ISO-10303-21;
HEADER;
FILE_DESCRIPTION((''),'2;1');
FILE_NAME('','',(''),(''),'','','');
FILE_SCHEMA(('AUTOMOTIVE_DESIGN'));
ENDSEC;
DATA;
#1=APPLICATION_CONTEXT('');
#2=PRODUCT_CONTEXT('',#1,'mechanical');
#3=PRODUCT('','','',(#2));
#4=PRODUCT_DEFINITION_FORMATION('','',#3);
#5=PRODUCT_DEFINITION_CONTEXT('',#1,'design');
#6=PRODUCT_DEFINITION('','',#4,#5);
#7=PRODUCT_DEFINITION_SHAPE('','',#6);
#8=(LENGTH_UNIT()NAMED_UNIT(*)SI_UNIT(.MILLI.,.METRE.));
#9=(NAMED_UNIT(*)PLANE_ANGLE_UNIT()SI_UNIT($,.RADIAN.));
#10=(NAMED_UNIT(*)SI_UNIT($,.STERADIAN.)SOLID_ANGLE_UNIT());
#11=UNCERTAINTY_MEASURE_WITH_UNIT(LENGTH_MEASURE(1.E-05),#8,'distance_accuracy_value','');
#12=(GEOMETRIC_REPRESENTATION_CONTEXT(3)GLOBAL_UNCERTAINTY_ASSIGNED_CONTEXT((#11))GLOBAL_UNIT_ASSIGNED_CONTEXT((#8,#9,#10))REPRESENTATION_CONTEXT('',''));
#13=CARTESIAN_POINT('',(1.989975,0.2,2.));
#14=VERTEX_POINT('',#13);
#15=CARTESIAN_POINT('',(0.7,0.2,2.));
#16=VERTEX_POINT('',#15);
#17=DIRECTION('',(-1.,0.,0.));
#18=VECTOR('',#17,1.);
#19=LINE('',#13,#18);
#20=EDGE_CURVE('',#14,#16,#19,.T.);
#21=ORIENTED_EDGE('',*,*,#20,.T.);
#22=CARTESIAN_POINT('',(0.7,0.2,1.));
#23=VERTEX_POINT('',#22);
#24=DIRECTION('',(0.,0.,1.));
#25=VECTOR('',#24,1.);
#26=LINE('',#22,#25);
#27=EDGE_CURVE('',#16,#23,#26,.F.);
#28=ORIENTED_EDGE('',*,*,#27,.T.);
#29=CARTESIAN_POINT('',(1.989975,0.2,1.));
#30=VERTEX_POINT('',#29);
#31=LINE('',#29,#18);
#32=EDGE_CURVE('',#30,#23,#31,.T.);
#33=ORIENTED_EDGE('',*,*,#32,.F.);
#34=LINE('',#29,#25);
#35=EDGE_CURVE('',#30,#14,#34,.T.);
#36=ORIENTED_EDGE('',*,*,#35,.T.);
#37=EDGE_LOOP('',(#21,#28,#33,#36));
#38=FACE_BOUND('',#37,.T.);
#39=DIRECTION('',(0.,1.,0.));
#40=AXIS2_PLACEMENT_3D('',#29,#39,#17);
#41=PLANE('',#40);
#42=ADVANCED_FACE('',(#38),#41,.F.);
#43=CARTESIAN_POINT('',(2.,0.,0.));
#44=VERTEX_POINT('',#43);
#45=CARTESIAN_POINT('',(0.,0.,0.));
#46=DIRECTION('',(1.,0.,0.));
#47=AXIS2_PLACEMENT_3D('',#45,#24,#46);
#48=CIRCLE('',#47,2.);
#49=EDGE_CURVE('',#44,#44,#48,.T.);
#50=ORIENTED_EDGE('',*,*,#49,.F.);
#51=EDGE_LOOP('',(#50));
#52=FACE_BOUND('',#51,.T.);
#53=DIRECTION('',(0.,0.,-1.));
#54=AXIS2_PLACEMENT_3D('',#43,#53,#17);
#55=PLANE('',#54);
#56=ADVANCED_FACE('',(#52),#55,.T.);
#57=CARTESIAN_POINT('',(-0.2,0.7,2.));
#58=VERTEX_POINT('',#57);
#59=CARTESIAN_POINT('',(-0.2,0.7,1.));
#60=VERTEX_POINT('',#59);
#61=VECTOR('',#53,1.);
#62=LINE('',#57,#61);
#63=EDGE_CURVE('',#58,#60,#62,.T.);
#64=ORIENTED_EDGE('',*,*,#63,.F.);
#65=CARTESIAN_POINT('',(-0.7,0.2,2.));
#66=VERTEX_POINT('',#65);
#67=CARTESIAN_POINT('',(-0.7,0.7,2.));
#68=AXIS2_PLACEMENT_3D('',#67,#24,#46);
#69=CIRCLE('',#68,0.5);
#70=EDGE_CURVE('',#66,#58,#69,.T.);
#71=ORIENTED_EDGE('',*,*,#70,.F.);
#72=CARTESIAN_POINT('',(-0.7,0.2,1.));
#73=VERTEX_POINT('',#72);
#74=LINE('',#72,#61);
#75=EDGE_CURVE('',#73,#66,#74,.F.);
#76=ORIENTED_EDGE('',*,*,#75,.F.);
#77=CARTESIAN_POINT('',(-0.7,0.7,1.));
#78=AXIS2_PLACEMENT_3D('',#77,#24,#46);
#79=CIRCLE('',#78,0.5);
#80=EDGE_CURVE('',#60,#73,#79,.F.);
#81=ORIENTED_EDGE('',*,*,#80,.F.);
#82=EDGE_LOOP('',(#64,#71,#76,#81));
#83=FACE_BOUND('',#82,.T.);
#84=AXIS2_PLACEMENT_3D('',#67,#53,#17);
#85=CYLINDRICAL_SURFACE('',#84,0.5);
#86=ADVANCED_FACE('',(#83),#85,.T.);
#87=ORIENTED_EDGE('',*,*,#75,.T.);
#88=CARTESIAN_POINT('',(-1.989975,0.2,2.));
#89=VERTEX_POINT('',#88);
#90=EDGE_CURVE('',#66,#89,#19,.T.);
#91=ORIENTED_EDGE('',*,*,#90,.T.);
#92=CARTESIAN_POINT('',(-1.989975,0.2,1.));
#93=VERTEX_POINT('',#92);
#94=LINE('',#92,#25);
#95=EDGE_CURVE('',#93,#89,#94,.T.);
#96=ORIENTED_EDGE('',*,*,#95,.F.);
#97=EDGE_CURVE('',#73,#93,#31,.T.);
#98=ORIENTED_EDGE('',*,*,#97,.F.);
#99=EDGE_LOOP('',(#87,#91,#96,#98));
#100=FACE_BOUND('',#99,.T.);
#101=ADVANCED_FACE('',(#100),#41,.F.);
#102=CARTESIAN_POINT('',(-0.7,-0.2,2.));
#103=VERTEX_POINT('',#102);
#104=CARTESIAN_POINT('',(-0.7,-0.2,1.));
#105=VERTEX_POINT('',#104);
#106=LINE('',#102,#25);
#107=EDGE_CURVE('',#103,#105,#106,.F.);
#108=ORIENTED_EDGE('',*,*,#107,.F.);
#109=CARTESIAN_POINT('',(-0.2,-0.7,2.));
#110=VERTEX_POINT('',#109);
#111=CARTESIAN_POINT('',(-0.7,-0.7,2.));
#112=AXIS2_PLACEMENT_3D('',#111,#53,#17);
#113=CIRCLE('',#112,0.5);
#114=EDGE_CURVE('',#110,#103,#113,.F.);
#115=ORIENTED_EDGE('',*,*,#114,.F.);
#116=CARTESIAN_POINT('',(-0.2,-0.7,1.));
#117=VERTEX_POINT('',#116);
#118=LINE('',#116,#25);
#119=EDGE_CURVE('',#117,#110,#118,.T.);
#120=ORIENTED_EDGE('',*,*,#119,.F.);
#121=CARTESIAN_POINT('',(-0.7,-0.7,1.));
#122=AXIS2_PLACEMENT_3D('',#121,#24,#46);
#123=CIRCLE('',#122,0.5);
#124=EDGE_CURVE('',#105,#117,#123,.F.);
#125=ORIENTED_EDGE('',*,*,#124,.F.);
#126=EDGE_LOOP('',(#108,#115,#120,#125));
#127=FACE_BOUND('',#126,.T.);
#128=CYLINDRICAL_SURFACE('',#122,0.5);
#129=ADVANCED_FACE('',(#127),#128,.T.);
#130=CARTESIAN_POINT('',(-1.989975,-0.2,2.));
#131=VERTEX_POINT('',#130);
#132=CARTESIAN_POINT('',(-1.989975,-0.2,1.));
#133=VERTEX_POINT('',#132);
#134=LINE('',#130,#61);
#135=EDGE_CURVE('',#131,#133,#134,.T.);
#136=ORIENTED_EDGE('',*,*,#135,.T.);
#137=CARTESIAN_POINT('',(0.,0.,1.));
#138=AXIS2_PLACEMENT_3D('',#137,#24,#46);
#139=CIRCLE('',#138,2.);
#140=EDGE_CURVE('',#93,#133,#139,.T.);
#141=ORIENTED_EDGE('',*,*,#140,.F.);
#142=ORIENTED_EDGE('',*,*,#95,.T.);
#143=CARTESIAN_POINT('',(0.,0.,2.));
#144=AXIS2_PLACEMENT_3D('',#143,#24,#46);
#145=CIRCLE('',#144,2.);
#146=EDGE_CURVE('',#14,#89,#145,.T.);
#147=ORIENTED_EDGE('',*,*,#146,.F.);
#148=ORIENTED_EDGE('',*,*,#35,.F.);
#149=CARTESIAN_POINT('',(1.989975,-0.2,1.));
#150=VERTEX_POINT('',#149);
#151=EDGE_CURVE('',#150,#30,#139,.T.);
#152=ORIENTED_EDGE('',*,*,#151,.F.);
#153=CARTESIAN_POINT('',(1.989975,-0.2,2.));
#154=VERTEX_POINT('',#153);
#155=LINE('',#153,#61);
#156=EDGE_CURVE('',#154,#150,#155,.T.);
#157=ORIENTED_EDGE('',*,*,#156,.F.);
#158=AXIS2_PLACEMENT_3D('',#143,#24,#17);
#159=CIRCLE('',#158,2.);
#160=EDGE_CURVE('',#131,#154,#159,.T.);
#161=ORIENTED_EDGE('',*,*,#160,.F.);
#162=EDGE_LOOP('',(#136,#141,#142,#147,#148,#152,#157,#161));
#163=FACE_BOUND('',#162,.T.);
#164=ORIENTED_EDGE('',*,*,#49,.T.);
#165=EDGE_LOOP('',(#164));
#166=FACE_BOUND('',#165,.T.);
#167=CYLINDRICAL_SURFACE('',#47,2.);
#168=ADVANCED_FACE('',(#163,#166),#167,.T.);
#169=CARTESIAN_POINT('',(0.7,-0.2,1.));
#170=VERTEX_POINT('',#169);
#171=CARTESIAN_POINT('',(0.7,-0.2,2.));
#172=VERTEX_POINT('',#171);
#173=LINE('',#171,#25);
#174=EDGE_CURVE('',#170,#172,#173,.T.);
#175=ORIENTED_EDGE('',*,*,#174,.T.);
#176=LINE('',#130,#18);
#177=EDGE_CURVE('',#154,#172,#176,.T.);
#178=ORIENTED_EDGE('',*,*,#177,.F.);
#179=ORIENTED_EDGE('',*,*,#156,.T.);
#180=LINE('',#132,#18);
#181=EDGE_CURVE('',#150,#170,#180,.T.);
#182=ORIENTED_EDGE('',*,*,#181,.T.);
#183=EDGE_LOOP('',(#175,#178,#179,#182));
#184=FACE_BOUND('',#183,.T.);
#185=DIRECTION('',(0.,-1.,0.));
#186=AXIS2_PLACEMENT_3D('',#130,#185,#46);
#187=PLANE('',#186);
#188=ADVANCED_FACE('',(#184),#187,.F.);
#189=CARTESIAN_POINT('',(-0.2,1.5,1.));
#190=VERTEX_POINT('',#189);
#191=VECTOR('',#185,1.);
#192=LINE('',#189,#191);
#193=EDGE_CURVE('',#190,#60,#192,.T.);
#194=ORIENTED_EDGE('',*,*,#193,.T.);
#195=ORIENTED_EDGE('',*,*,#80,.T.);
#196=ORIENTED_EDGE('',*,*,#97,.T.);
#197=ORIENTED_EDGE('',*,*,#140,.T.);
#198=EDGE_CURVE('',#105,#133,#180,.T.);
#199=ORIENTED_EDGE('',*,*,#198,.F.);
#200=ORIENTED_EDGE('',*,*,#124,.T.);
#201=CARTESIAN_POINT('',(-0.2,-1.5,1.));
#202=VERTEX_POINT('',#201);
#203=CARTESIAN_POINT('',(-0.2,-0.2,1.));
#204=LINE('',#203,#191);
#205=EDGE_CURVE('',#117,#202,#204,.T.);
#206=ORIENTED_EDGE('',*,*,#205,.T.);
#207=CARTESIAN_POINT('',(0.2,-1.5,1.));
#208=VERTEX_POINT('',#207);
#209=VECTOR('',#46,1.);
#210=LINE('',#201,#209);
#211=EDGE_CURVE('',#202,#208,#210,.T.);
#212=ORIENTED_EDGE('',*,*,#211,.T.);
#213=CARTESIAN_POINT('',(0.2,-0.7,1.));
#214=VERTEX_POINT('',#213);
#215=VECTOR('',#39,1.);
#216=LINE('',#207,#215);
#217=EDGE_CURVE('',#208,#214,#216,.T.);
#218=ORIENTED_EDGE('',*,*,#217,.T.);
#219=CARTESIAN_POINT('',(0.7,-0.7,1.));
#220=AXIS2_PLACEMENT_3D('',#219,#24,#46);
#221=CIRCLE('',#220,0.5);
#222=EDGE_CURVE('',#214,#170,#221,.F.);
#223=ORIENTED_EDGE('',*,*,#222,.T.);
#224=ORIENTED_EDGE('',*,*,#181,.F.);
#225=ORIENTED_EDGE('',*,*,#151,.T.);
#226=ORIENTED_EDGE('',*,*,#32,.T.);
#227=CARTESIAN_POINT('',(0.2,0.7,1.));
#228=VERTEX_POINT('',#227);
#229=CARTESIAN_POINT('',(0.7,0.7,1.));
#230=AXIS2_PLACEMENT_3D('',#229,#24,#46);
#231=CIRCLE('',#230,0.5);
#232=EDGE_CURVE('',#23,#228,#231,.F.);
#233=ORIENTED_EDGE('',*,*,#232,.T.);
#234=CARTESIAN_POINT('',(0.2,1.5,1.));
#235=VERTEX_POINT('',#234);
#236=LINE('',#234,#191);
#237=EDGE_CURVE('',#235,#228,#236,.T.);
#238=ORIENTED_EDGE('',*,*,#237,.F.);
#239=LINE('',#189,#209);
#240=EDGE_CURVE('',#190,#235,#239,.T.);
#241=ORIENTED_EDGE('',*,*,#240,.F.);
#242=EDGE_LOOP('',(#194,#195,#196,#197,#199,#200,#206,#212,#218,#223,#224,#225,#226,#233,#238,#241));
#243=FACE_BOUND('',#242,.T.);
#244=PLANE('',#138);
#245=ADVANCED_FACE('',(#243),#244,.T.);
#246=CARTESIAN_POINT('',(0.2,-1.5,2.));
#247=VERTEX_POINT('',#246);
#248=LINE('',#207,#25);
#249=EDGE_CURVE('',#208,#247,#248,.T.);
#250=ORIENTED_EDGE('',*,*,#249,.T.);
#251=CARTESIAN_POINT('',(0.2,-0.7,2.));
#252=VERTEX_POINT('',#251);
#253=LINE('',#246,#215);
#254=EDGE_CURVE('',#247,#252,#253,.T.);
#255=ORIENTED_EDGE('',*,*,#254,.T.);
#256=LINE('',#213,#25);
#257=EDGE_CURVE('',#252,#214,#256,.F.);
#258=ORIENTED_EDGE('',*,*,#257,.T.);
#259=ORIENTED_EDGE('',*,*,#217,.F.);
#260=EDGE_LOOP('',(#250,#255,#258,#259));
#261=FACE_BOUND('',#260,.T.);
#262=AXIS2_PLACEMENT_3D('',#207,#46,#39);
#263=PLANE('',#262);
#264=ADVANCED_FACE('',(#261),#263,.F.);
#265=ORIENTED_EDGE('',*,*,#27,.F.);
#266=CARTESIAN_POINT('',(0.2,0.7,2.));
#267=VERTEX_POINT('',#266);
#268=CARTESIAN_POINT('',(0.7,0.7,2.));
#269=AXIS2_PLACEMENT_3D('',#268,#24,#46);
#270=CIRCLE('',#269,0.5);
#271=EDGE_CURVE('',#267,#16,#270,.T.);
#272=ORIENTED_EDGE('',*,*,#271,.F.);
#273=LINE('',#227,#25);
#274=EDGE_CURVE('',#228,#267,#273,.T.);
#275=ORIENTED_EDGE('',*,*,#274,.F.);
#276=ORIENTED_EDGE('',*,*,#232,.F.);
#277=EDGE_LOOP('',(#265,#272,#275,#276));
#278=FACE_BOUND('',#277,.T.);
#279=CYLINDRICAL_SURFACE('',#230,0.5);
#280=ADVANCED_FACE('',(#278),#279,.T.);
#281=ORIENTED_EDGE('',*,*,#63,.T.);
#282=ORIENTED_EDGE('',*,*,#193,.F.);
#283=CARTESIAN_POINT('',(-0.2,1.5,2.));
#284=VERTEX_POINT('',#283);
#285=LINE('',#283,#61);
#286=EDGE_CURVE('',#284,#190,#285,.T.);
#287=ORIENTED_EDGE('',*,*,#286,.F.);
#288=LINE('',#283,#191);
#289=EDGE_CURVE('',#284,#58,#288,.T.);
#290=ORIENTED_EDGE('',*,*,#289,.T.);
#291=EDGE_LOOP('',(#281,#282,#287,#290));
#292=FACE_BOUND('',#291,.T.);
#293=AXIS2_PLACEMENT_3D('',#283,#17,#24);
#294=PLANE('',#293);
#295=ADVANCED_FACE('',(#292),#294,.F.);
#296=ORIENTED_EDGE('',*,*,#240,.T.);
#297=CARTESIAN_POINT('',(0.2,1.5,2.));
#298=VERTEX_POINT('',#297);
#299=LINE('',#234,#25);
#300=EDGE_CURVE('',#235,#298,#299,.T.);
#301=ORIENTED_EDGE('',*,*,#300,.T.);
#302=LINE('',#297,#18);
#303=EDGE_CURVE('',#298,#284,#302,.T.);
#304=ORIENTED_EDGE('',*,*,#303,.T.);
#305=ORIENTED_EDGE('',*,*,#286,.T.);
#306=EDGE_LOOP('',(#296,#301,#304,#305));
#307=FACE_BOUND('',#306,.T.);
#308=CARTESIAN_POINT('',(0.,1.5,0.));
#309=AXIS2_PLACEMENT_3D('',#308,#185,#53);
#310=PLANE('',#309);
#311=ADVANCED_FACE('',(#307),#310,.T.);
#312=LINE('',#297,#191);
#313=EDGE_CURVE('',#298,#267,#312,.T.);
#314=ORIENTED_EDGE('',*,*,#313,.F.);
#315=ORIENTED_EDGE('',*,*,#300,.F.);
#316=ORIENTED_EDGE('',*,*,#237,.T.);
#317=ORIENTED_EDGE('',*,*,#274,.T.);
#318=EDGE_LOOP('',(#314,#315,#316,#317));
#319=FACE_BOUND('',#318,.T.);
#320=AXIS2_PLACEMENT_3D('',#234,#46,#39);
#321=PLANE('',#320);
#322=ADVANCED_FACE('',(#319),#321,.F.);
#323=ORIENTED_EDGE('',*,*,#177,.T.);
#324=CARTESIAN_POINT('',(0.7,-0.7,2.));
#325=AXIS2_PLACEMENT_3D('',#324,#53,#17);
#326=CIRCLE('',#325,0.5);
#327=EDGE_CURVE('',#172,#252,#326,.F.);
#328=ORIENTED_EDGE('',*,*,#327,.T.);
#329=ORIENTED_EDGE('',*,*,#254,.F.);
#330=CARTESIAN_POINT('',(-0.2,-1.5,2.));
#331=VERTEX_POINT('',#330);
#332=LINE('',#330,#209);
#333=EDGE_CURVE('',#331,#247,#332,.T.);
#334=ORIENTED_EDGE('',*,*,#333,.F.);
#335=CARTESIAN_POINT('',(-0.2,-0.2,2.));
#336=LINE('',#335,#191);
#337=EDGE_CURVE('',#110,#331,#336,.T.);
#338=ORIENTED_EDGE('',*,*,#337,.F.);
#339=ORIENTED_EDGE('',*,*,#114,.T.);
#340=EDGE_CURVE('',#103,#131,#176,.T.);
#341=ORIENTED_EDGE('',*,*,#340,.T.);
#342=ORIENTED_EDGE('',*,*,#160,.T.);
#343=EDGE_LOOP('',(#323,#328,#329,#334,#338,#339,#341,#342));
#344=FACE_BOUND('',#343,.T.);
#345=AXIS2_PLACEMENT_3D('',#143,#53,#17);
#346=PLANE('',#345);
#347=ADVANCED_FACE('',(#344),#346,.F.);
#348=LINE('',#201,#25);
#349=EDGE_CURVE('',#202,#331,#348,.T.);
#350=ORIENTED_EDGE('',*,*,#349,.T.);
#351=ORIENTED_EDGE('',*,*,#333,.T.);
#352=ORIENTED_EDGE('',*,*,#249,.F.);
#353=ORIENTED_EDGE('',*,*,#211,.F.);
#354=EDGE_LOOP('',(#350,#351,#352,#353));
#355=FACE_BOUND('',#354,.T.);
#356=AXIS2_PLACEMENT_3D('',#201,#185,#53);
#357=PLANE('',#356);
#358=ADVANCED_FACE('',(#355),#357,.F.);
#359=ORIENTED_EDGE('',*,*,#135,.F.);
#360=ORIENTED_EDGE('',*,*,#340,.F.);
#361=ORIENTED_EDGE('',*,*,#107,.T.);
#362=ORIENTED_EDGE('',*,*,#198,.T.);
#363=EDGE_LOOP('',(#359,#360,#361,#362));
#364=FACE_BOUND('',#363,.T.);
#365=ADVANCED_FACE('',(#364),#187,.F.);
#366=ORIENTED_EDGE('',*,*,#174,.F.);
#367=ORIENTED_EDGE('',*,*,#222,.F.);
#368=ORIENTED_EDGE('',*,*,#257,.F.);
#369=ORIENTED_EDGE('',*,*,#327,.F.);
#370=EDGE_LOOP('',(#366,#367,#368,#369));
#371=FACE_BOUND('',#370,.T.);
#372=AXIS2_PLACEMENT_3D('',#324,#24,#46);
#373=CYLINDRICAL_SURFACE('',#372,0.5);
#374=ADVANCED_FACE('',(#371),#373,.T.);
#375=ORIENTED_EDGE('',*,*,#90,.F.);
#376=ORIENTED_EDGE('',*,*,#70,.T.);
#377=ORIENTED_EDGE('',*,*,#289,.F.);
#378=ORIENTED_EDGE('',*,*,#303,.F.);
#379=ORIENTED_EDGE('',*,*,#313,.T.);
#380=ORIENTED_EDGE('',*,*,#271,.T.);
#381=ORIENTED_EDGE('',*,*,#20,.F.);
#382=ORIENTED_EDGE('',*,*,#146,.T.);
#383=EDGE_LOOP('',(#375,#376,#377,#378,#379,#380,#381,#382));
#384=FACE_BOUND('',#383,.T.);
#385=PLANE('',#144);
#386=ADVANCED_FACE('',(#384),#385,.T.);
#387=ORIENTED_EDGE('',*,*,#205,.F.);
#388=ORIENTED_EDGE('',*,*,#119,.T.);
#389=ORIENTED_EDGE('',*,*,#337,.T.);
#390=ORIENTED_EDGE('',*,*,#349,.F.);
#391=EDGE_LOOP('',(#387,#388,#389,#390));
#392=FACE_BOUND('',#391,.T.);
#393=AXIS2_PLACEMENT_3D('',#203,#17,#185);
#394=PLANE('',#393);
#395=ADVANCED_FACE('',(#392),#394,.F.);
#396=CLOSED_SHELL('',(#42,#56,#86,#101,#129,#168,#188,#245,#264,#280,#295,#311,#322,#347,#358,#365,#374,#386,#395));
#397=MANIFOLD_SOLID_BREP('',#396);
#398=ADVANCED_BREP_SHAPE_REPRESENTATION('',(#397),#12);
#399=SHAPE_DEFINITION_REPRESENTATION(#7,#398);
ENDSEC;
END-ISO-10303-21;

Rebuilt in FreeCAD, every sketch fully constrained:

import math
import FreeCAD as App
import Part
import Sketcher
from FreeCAD import Vector


def edges_at(feature, points):
    """Names of the edges that pass closest to the given points."""
    edges = feature.Shape.Edges
    near = lambda p: min(range(len(edges)), key=lambda i: edges[i].distToShape(Part.Vertex(*p))[0])
    return sorted({f"Edge{near(p) + 1}" for p in points})

doc = App.newDocument("Part")
params = doc.addObject("Spreadsheet::Sheet", "Params")
for row, (alias, value) in enumerate([
    ("sketch1_width", "2 mm"),
    ("revolution_angle", "360 deg"),
    ("sketch2_radius", "2 mm"),
    ("pocket1_length", "1 mm"),
    ("sketch3_height", "1 mm"),
    ("sketch3_width", "0.4 mm"),
    ("pocket2_length", "1.3 mm"),
    ("sketch4_radius", "2 mm"),
    ("pad1_length", "1 mm"),
    ("sketch5_width", "0.4 mm"),
    ("sketch5_height", "1.3 mm"),
    ("pocket3_length", "1 mm"),
    ("fillet_radius", "0.5 mm"),
], start=1):
    params.set(f"A{row}", alias)
    params.set(f"B{row}", "=" + value)
    params.setAlias(f"B{row}", alias)

body = doc.addObject("PartDesign::Body", "Body")

# Sketch on XZ plane
sketch1 = body.newObject("Sketcher::SketchObject", "Sketch")
sketch1.AttachmentSupport = (doc.getObject("XZ_Plane"), [""])
sketch1.MapMode = "FlatFace"
sketch1.addGeometry(Part.LineSegment(Vector(0, 0, 0), Vector(0, 2, 0)), False)
sketch1.addGeometry(Part.LineSegment(Vector(0, 2, 0), Vector(2, 2, 0)), False)
sketch1.addGeometry(Part.LineSegment(Vector(2, 2, 0), Vector(2, 0, 0)), False)
sketch1.addGeometry(Part.LineSegment(Vector(2, 0, 0), Vector(0, 0, 0)), False)
sketch1.addConstraint(Sketcher.Constraint("Coincident", 0, 2, 1, 1))
sketch1.addConstraint(Sketcher.Constraint("Coincident", 1, 2, 2, 1))
sketch1.addConstraint(Sketcher.Constraint("Coincident", 2, 2, 3, 1))
sketch1.addConstraint(Sketcher.Constraint("Coincident", 3, 2, 0, 1))
sketch1.addConstraint(Sketcher.Constraint("Vertical", 0))
sketch1.addConstraint(Sketcher.Constraint("Horizontal", 1))
sketch1.addConstraint(Sketcher.Constraint("Vertical", 2))
sketch1.addConstraint(Sketcher.Constraint("Horizontal", 3))
sketch1.addConstraint(Sketcher.Constraint("Coincident", 3, 2, -1, 1))
sketch1.addConstraint(Sketcher.Constraint("Equal", 3, 0))
sketch1.addConstraint(Sketcher.Constraint("DistanceX", 1, 1, 1, 2, 2.0))
sketch1.setExpression("Constraints[10]", "Params.sketch1_width")
revolution = body.newObject("PartDesign::Revolution", "Revolution")
revolution.Profile = sketch1
revolution.ReferenceAxis = (sketch1, ["V_Axis"])
revolution.setExpression("Angle", "Params.revolution_angle")

# Sketch on XY plane
sketch2 = body.newObject("Sketcher::SketchObject", "Sketch001")
sketch2.AttachmentSupport = (doc.getObject("XY_Plane"), [""])
sketch2.MapMode = "FlatFace"
sketch2.AttachmentOffset = App.Placement(Vector(0, 0, 1), App.Rotation())
sketch2.addGeometry(Part.LineSegment(Vector(2, 0.2, 0), Vector(-2, 0.2, 0)), False)
sketch2.addGeometry(Part.ArcOfCircle(Part.Circle(Vector(0, 0, 0), Vector(0, 0, 1), 2), math.radians(174), math.radians(366)), False)
sketch2.addConstraint(Sketcher.Constraint("Coincident", 0, 1, 1, 2))
sketch2.addConstraint(Sketcher.Constraint("Coincident", 1, 1, 0, 2))
sketch2.addConstraint(Sketcher.Constraint("Horizontal", 0))
sketch2.addConstraint(Sketcher.Constraint("Coincident", 1, 3, -1, 1))
sketch2.addConstraint(Sketcher.Constraint("Radius", 1, 2.0))
sketch2.addConstraint(Sketcher.Constraint("DistanceY", -1, 1, 0, 1, 0.2))
sketch2.setExpression("Constraints[4]", "Params.sketch2_radius")
pocket1 = body.newObject("PartDesign::Pocket", "Pocket")
pocket1.Profile = sketch2
pocket1.setExpression("Length", "Params.pocket1_length")
pocket1.Reversed = True

# Sketch on XZ plane
sketch3 = body.newObject("Sketcher::SketchObject", "Sketch002")
sketch3.AttachmentSupport = (doc.getObject("XZ_Plane"), [""])
sketch3.MapMode = "FlatFace"
sketch3.AttachmentOffset = App.Placement(Vector(0, 0, -0.2), App.Rotation())
sketch3.addGeometry(Part.LineSegment(Vector(-0.2, 2, 0), Vector(-0.2, 1, 0)), False)
sketch3.addGeometry(Part.LineSegment(Vector(-0.2, 1, 0), Vector(0.2, 1, 0)), False)
sketch3.addGeometry(Part.LineSegment(Vector(0.2, 1, 0), Vector(0.2, 2, 0)), False)
sketch3.addGeometry(Part.LineSegment(Vector(0.2, 2, 0), Vector(-0.2, 2, 0)), False)
sketch3.addConstraint(Sketcher.Constraint("Coincident", 0, 2, 1, 1))
sketch3.addConstraint(Sketcher.Constraint("Coincident", 1, 2, 2, 1))
sketch3.addConstraint(Sketcher.Constraint("Coincident", 2, 2, 3, 1))
sketch3.addConstraint(Sketcher.Constraint("Coincident", 3, 2, 0, 1))
sketch3.addConstraint(Sketcher.Constraint("Vertical", 0))
sketch3.addConstraint(Sketcher.Constraint("Horizontal", 1))
sketch3.addConstraint(Sketcher.Constraint("Vertical", 2))
sketch3.addConstraint(Sketcher.Constraint("Horizontal", 3))
sketch3.addConstraint(Sketcher.Constraint("DistanceY", 0, 2, 0, 1, 1.0))
sketch3.addConstraint(Sketcher.Constraint("DistanceX", 1, 1, 1, 2, 0.4))
sketch3.addConstraint(Sketcher.Constraint("DistanceY", -1, 1, 0, 2, 1.0))
sketch3.addConstraint(Sketcher.Constraint("DistanceX", 0, 2, -1, 1, 0.2))
sketch3.setExpression("Constraints[8]", "Params.sketch3_height")
sketch3.setExpression("Constraints[9]", "Params.sketch3_width")
pocket2 = body.newObject("PartDesign::Pocket", "Pocket001")
pocket2.Profile = sketch3
pocket2.setExpression("Length", "Params.pocket2_length")

# Sketch on XY plane
sketch4 = body.newObject("Sketcher::SketchObject", "Sketch003")
sketch4.AttachmentSupport = (doc.getObject("XY_Plane"), [""])
sketch4.MapMode = "FlatFace"
sketch4.AttachmentOffset = App.Placement(Vector(0, 0, 1), App.Rotation())
sketch4.addGeometry(Part.LineSegment(Vector(2, -0.2, 0), Vector(-2, -0.2, 0)), False)
sketch4.addGeometry(Part.ArcOfCircle(Part.Circle(Vector(0, 0, 0), Vector(0, 0, 1), 2), math.radians(-174), math.radians(-6)), False)
sketch4.addConstraint(Sketcher.Constraint("Coincident", 0, 1, 1, 2))
sketch4.addConstraint(Sketcher.Constraint("Coincident", 1, 1, 0, 2))
sketch4.addConstraint(Sketcher.Constraint("Horizontal", 0))
sketch4.addConstraint(Sketcher.Constraint("Coincident", 1, 3, -1, 1))
sketch4.addConstraint(Sketcher.Constraint("Radius", 1, 2.0))
sketch4.addConstraint(Sketcher.Constraint("DistanceY", 0, 1, -1, 1, 0.2))
sketch4.setExpression("Constraints[4]", "Params.sketch4_radius")
pad1 = body.newObject("PartDesign::Pad", "Pad")
pad1.Profile = sketch4
pad1.setExpression("Length", "Params.pad1_length")

# Sketch on XY plane
sketch5 = body.newObject("Sketcher::SketchObject", "Sketch004")
sketch5.AttachmentSupport = (doc.getObject("XY_Plane"), [""])
sketch5.MapMode = "FlatFace"
sketch5.AttachmentOffset = App.Placement(Vector(0, 0, 2), App.Rotation())
sketch5.addGeometry(Part.LineSegment(Vector(-0.2, -0.2, 0), Vector(-0.2, -1.5, 0)), False)
sketch5.addGeometry(Part.LineSegment(Vector(-0.2, -1.5, 0), Vector(0.2, -1.5, 0)), False)
sketch5.addGeometry(Part.LineSegment(Vector(0.2, -1.5, 0), Vector(0.2, -0.2, 0)), False)
sketch5.addGeometry(Part.LineSegment(Vector(0.2, -0.2, 0), Vector(-0.2, -0.2, 0)), False)
sketch5.addConstraint(Sketcher.Constraint("Coincident", 0, 2, 1, 1))
sketch5.addConstraint(Sketcher.Constraint("Coincident", 1, 2, 2, 1))
sketch5.addConstraint(Sketcher.Constraint("Coincident", 2, 2, 3, 1))
sketch5.addConstraint(Sketcher.Constraint("Coincident", 3, 2, 0, 1))
sketch5.addConstraint(Sketcher.Constraint("Vertical", 0))
sketch5.addConstraint(Sketcher.Constraint("Horizontal", 1))
sketch5.addConstraint(Sketcher.Constraint("Vertical", 2))
sketch5.addConstraint(Sketcher.Constraint("Horizontal", 3))
sketch5.addConstraint(Sketcher.Constraint("DistanceX", 1, 1, 1, 2, 0.4))
sketch5.addConstraint(Sketcher.Constraint("DistanceY", 0, 2, 0, 1, 1.3))
sketch5.addConstraint(Sketcher.Constraint("DistanceX", 0, 2, -1, 1, 0.2))
sketch5.addConstraint(Sketcher.Constraint("DistanceY", 0, 2, -1, 1, 1.5))
sketch5.setExpression("Constraints[8]", "Params.sketch5_width")
sketch5.setExpression("Constraints[9]", "Params.sketch5_height")
pocket3 = body.newObject("PartDesign::Pocket", "Pocket002")
pocket3.Profile = sketch5
pocket3.setExpression("Length", "Params.pocket3_length")
doc.recompute()

fillet = body.newObject("PartDesign::Fillet", "Fillet")
fillet.Base = (pocket3, edges_at(pocket3, [
    (-0.2, 0.2, 1.5),
    (0.2, 0.2, 1.5),
    (-0.2, -0.2, 1.5),
    (0.2, -0.2, 1.5),
]))
fillet.setExpression("Radius", "Params.fillet_radius")

doc.recompute()
